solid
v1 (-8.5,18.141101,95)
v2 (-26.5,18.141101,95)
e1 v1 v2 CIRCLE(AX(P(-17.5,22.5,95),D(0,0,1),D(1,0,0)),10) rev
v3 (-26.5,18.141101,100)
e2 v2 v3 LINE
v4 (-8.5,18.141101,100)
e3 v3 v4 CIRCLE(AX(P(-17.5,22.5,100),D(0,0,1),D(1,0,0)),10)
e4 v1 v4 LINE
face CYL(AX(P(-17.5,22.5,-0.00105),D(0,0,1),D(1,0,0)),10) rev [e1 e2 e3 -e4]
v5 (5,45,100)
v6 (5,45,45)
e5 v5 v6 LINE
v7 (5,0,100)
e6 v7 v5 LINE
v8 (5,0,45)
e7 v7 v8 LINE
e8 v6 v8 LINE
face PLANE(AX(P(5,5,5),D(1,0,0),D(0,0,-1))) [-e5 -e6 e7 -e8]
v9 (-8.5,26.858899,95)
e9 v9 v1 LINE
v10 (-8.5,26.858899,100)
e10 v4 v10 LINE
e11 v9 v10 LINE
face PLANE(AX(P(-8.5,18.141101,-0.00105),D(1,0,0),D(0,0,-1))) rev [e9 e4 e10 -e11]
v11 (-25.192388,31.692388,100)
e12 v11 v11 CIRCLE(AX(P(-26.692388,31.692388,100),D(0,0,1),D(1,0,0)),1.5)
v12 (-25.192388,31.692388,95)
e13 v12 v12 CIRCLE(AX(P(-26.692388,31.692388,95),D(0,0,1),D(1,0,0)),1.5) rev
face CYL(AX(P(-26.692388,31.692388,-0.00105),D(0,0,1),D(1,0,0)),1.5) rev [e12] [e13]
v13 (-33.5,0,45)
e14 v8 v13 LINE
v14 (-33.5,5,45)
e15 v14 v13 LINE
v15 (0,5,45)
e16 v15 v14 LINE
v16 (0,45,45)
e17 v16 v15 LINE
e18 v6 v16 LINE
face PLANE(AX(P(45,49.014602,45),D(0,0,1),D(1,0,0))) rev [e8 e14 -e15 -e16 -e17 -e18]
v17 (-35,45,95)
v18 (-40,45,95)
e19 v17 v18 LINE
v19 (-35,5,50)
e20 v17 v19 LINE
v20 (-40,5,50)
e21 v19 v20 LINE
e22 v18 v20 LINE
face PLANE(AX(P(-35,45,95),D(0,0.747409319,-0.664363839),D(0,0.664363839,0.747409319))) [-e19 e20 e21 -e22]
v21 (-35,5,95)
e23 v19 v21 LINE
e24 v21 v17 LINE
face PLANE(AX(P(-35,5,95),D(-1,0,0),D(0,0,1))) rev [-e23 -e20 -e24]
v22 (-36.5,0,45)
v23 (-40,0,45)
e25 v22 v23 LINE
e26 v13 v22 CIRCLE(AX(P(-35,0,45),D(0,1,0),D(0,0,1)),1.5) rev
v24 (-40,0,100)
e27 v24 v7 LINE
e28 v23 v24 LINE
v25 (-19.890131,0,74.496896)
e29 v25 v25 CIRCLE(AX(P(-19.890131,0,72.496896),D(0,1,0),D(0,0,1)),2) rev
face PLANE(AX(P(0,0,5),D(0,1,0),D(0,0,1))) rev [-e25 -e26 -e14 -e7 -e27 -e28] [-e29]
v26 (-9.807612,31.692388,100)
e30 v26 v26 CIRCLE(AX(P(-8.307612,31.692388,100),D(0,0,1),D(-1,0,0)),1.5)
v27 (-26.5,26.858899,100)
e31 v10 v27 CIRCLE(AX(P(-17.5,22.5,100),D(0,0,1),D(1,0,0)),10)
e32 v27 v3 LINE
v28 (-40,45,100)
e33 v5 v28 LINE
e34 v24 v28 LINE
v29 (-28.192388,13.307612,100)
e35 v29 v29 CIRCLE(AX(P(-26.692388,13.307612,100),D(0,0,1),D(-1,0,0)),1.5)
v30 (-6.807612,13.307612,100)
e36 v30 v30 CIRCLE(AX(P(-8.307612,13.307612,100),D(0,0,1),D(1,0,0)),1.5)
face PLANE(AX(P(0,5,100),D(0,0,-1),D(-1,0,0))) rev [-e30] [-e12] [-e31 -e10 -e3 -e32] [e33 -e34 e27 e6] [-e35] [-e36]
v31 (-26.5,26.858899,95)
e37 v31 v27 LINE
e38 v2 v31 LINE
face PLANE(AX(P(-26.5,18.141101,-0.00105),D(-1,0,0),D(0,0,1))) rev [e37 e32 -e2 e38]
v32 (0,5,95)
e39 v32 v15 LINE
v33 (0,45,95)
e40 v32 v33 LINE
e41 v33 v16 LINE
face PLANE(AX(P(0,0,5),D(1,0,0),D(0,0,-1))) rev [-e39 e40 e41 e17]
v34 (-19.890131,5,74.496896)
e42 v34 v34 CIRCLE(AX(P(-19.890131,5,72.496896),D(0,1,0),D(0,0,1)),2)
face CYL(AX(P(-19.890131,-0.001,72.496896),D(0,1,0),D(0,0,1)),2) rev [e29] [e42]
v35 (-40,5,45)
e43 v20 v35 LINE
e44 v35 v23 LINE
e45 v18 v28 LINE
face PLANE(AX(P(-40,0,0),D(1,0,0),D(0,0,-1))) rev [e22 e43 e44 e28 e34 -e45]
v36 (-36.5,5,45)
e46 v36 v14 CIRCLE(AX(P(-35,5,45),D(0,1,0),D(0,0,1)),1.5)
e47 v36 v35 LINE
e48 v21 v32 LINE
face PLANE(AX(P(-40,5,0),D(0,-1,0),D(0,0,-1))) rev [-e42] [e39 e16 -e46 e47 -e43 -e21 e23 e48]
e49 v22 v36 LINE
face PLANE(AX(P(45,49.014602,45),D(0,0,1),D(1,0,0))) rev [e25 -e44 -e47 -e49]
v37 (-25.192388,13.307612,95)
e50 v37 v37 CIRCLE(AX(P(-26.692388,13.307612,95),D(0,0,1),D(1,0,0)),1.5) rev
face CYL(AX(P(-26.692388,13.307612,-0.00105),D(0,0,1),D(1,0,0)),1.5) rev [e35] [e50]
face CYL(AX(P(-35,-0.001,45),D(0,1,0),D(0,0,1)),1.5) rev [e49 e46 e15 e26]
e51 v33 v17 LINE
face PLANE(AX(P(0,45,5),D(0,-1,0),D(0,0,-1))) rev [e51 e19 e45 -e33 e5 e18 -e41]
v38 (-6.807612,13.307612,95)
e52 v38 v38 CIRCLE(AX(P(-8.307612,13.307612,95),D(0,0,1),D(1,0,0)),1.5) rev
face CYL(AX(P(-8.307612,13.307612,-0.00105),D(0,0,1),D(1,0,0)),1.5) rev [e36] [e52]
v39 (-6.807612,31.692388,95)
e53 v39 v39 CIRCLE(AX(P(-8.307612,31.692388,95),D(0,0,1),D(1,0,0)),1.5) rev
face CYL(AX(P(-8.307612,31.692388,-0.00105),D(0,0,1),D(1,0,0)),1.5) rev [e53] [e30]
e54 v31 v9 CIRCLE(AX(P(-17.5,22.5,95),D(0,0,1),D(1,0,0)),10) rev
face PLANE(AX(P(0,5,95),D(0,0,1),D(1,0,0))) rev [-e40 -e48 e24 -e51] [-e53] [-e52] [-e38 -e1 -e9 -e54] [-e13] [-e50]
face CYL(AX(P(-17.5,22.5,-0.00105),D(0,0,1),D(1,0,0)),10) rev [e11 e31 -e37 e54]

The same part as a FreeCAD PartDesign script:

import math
import FreeCAD as App
import Part
import Sketcher

V = App.Vector
Q = App.Units.Quantity


def add_polygon(sketch, points):
    """Adds a closed chain of lines whose ends are joined by coincident constraints."""
    first, n = sketch.GeometryCount, len(points)
    for a, b in zip(points, points[1:] + points[:1]):
        sketch.addGeometry(Part.LineSegment(App.Vector(*a, 0), App.Vector(*b, 0)), False)
    for i in range(n):
        sketch.addConstraint(Sketcher.Constraint("Coincident", first + i, 2, first + (i + 1) % n, 1))

doc = App.newDocument("Part")
body = doc.addObject("PartDesign::Body", "Body")

# Sketch on XY plane
sketch1 = body.newObject("Sketcher::SketchObject", "Sketch")
sketch1.AttachmentSupport = (doc.getObject("XY_Plane"), [""])
sketch1.MapMode = "FlatFace"
add_polygon(sketch1, [(0, 45), (0, 0), (45, 0), (45, 45)])  # lines 0-3
sketch1.addGeometry(Part.Circle(V(13.307612, 13.307612, 0), V(0, 0, 1), 1.5), False)  # 4
sketch1.addGeometry(Part.Circle(V(31.692388, 13.307612, 0), V(0, 0, 1), 1.5), False)  # 5
sketch1.addGeometry(Part.Circle(V(13.307612, 31.692388, 0), V(0, 0, 1), 1.5), False)  # 6
sketch1.addGeometry(Part.LineSegment(V(13.5, 18.141101, 0), V(13.5, 26.858899, 0)), False)  # 7
sketch1.addGeometry(Part.ArcOfCircle(Part.Circle(V(22.5, 22.5, 0), V(0, 0, 1), 10), math.radians(25.841933), math.radians(154.158067)), False)  # 8
sketch1.addGeometry(Part.LineSegment(V(31.5, 26.858899, 0), V(31.5, 18.141101, 0)), False)  # 9
sketch1.addGeometry(Part.ArcOfCircle(Part.Circle(V(22.5, 22.5, 0), V(0, 0, 1), 10), math.radians(-154.158067), math.radians(-25.841933)), False)  # 10
sketch1.addGeometry(Part.Circle(V(31.692388, 31.692388, 0), V(0, 0, 1), 1.5), False)  # 11
sketch1.addConstraint([
    Sketcher.Constraint("Coincident", 7, 2, 8, 2),
    Sketcher.Constraint("Coincident", 8, 1, 9, 1),
    Sketcher.Constraint("Coincident", 9, 2, 10, 2),
    Sketcher.Constraint("Coincident", 10, 1, 7, 1),
    Sketcher.Constraint("Vertical", 0),
    Sketcher.Constraint("Horizontal", 1),
    Sketcher.Constraint("Vertical", 2),
    Sketcher.Constraint("Horizontal", 3),
    Sketcher.Constraint("Vertical", 7),
    Sketcher.Constraint("Vertical", 9),
    Sketcher.Constraint("Coincident", 0, 2, -1, 1),
    Sketcher.Constraint("Coincident", 10, 3, 8, 3),
    Sketcher.Constraint("Equal", 4, 5),
    Sketcher.Constraint("Equal", 5, 6),
    Sketcher.Constraint("Equal", 8, 10),
    Sketcher.Constraint("Equal", 6, 11),
    Sketcher.Constraint("Horizontal", 4, 3, 5, 3),
    Sketcher.Constraint("Horizontal", 6, 3, 11, 3),
    Sketcher.Constraint("Horizontal", 7, 2, 8, 1),
    Sketcher.Constraint("Vertical", 4, 3, 6, 3),
    Sketcher.Constraint("Vertical", 5, 3, 11, 3),
    Sketcher.Constraint("Equal", 3, 0),
    Sketcher.Constraint("Diameter", 4, Q("3 mm")),
    Sketcher.Constraint("Radius", 8, Q("10 mm")),
    Sketcher.Constraint("DistanceX", 1, 1, 1, 2, Q("45 mm")),
    Sketcher.Constraint("DistanceX", 7, 2, 8, 3, Q("9 mm")),
    Sketcher.Constraint("DistanceX", -1, 1, 8, 3, Q("22.5 mm")),
    Sketcher.Constraint("DistanceY", -1, 1, 8, 3, Q("22.5 mm")),
    Sketcher.Constraint("DistanceX", -1, 1, 4, 3, Q("13.307612 mm")),
    Sketcher.Constraint("DistanceY", -1, 1, 4, 3, Q("13.307612 mm")),
    Sketcher.Constraint("DistanceX", -1, 1, 5, 3, Q("31.692388 mm")),
    Sketcher.Constraint("DistanceY", -1, 1, 6, 3, Q("31.692388 mm")),
])
pad1 = body.newObject("PartDesign::Pad", "Pad")
pad1.Profile = sketch1
pad1.Length = 5

# Sketch on XY plane
sketch2 = body.newObject("Sketcher::SketchObject", "Sketch001")
sketch2.AttachmentSupport = (doc.getObject("XY_Plane"), [""])
sketch2.MapMode = "FlatFace"
sketch2.AttachmentOffset = App.Placement(V(0, 0, 5), App.Rotation())
add_polygon(sketch2, [(0, 5), (0, 0), (45, 0), (45, 5)])  # lines 0-3
sketch2.addConstraint([
    Sketcher.Constraint("Vertical", 0),
    Sketcher.Constraint("Horizontal", 1),
    Sketcher.Constraint("Vertical", 2),
    Sketcher.Constraint("Horizontal", 3),
    Sketcher.Constraint("Coincident", 0, 2, -1, 1),
    Sketcher.Constraint("DistanceX", 1, 1, 1, 2, Q("45 mm")),
    Sketcher.Constraint("DistanceY", 0, 2, 0, 1, Q("5 mm")),
])
pad2 = body.newObject("PartDesign::Pad", "Pad001")
pad2.Profile = sketch2
pad2.Length = 95

# Sketch on YZ plane
sketch3 = body.newObject("Sketcher::SketchObject", "Sketch002")
sketch3.AttachmentSupport = (doc.getObject("YZ_Plane"), [""])
sketch3.MapMode = "FlatFace"
sketch3.AttachmentOffset = App.Placement(V(0, 0, 45), App.Rotation())
add_polygon(sketch3, [(5, 5), (45, 5), (5, 50)])  # lines 0-2
sketch3.addConstraint([
    Sketcher.Constraint("Horizontal", 0),
    Sketcher.Constraint("Vertical", 2),
    Sketcher.Constraint("DistanceX", 0, 1, 0, 2, Q("40 mm")),
    Sketcher.Constraint("DistanceY", 2, 2, 2, 1, Q("45 mm")),
    Sketcher.Constraint("DistanceX", -1, 1, 0, 2, Q("45 mm")),
    Sketcher.Constraint("DistanceY", -1, 1, 0, 2, Q("5 mm")),
])
pad3 = body.newObject("PartDesign::Pad", "Pad002")
pad3.Profile = sketch3
pad3.Length = 5
pad3.Reversed = True

# Sketch on YZ plane
sketch4 = body.newObject("Sketcher::SketchObject", "Sketch003")
sketch4.AttachmentSupport = (doc.getObject("YZ_Plane"), [""])
sketch4.MapMode = "FlatFace"
add_polygon(sketch4, [(45, 5), (5, 5), (5, 100), (45, 100)])  # lines 0-3
sketch4.addConstraint([
    Sketcher.Constraint("Horizontal", 0),
    Sketcher.Constraint("Vertical", 1),
    Sketcher.Constraint("Horizontal", 2),
    Sketcher.Constraint("Vertical", 3),
    Sketcher.Constraint("DistanceX", 0, 2, 0, 1, Q("40 mm")),
    Sketcher.Constraint("DistanceY", 1, 1, 1, 2, Q("95 mm")),
    Sketcher.Constraint("DistanceX", -1, 1, 0, 2, Q("5 mm")),
    Sketcher.Constraint("DistanceY", -1, 1, 0, 2, Q("5 mm")),
])
pad4 = body.newObject("PartDesign::Pad", "Pad003")
pad4.Profile = sketch4
pad4.Length = 5

# Sketch on YZ plane
sketch5 = body.newObject("Sketcher::SketchObject", "Sketch004")
sketch5.AttachmentSupport = (doc.getObject("YZ_Plane"), [""])
sketch5.MapMode = "FlatFace"
add_polygon(sketch5, [(5, 0), (0, 0), (0, 100), (5, 100)])  # lines 0-3
sketch5.addConstraint([
    Sketcher.Constraint("Horizontal", 0),
    Sketcher.Constraint("Vertical", 1),
    Sketcher.Constraint("Horizontal", 2),
    Sketcher.Constraint("Vertical", 3),
    Sketcher.Constraint("Coincident", 0, 2, -1, 1),
    Sketcher.Constraint("DistanceX", 0, 2, 0, 1, Q("5 mm")),
    Sketcher.Constraint("DistanceY", 1, 1, 1, 2, Q("100 mm")),
])
pad5 = body.newObject("PartDesign::Pad", "Pad004")
pad5.Profile = sketch5
pad5.Length = 40
pad5.Reversed = True

# Sketch on XY plane
sketch6 = body.newObject("Sketcher::SketchObject", "Sketch005")
sketch6.AttachmentSupport = (doc.getObject("XY_Plane"), [""])
sketch6.MapMode = "FlatFace"
sketch6.AttachmentOffset = App.Placement(V(0, 0, 100), App.Rotation())
add_polygon(sketch6, [(-40, 45), (-40, 5), (0, 5), (0, 45)])  # lines 0-3
sketch6.addConstraint([
    Sketcher.Constraint("Vertical", 0),
    Sketcher.Constraint("Horizontal", 1),
    Sketcher.Constraint("Vertical", 2),
    Sketcher.Constraint("Horizontal", 3),
    Sketcher.Constraint("PointOnObject", 1, 2, -2),
    Sketcher.Constraint("Equal", 3, 0),
    Sketcher.Constraint("DistanceX", 1, 1, 1, 2, Q("40 mm")),
    Sketcher.Constraint("DistanceY", -1, 1, 0, 2, Q("5 mm")),
])
pad6 = body.newObject("PartDesign::Pad", "Pad005")
pad6.Profile = sketch6
pad6.Length = 5
pad6.Reversed = True

# Sketch on YZ plane
sketch7 = body.newObject("Sketcher::SketchObject", "Sketch006")
sketch7.AttachmentSupport = (doc.getObject("YZ_Plane"), [""])
sketch7.MapMode = "FlatFace"
sketch7.AttachmentOffset = App.Placement(V(0, 0, -40), App.Rotation())
add_polygon(sketch7, [(5, 95), (45, 95), (5, 50)])  # lines 0-2
sketch7.addConstraint([
    Sketcher.Constraint("Horizontal", 0),
    Sketcher.Constraint("Vertical", 2),
    Sketcher.Constraint("DistanceX", 0, 1, 0, 2, Q("40 mm")),
    Sketcher.Constraint("DistanceY", 2, 1, 2, 2, Q("45 mm")),
    Sketcher.Constraint("DistanceX", -1, 1, 0, 2, Q("45 mm")),
    Sketcher.Constraint("DistanceY", -1, 1, 0, 2, Q("95 mm")),
])
pad7 = body.newObject("PartDesign::Pad", "Pad006")
pad7.Profile = sketch7
pad7.Length = 5

# Sketch on XY plane
sketch8 = body.newObject("Sketcher::SketchObject", "Sketch007")
sketch8.AttachmentSupport = (doc.getObject("XY_Plane"), [""])
sketch8.MapMode = "FlatFace"
sketch8.AttachmentOffset = App.Placement(V(0, 0, 100), App.Rotation())
sketch8.addGeometry(Part.Circle(V(-26.692388, 31.692388, 0), V(0, 0, 1), 1.5), False)
sketch8.addConstraint([
    Sketcher.Constraint("Diameter", 0, Q("3 mm")),
    Sketcher.Constraint("DistanceX", 0, 3, -1, 1, Q("26.692388 mm")),
    Sketcher.Constraint("DistanceY", -1, 1, 0, 3, Q("31.692388 mm")),
])
pocket1 = body.newObject("PartDesign::Pocket", "Pocket")
pocket1.Profile = sketch8
pocket1.Type = "UpToFirst"

# Sketch on XY plane
sketch9 = body.newObject("Sketcher::SketchObject", "Sketch008")
sketch9.AttachmentSupport = (doc.getObject("XY_Plane"), [""])
sketch9.MapMode = "FlatFace"
sketch9.AttachmentOffset = App.Placement(V(0, 0, 100), App.Rotation())
sketch9.addGeometry(Part.Circle(V(-26.692388, 13.307612, 0), V(0, 0, 1), 1.5), False)
sketch9.addConstraint([
    Sketcher.Constraint("Diameter", 0, Q("3 mm")),
    Sketcher.Constraint("DistanceX", 0, 3, -1, 1, Q("26.692388 mm")),
    Sketcher.Constraint("DistanceY", -1, 1, 0, 3, Q("13.307612 mm")),
])
pocket2 = body.newObject("PartDesign::Pocket", "Pocket001")
pocket2.Profile = sketch9
pocket2.Type = "UpToFirst"

# Sketch on XY plane
sketch10 = body.newObject("Sketcher::SketchObject", "Sketch009")
sketch10.AttachmentSupport = (doc.getObject("XY_Plane"), [""])
sketch10.MapMode = "FlatFace"
sketch10.AttachmentOffset = App.Placement(V(0, 0, 100), App.Rotation())
sketch10.addGeometry(Part.Circle(V(-8.307612, 13.307612, 0), V(0, 0, 1), 1.5), False)
sketch10.addConstraint([
    Sketcher.Constraint("Diameter", 0, Q("3 mm")),
    Sketcher.Constraint("DistanceX", 0, 3, -1, 1, Q("8.307612 mm")),
    Sketcher.Constraint("DistanceY", -1, 1, 0, 3, Q("13.307612 mm")),
])
pocket3 = body.newObject("PartDesign::Pocket", "Pocket002")
pocket3.Profile = sketch10
pocket3.Type = "UpToFirst"

# Sketch on XY plane
sketch11 = body.newObject("Sketcher::SketchObject", "Sketch010")
sketch11.AttachmentSupport = (doc.getObject("XY_Plane"), [""])
sketch11.MapMode = "FlatFace"
sketch11.AttachmentOffset = App.Placement(V(0, 0, 100), App.Rotation())
sketch11.addGeometry(Part.Circle(V(-8.307612, 31.692388, 0), V(0, 0, 1), 1.5), False)
sketch11.addConstraint([
    Sketcher.Constraint("Diameter", 0, Q("3 mm")),
    Sketcher.Constraint("DistanceX", 0, 3, -1, 1, Q("8.307612 mm")),
    Sketcher.Constraint("DistanceY", -1, 1, 0, 3, Q("31.692388 mm")),
])
pocket4 = body.newObject("PartDesign::Pocket", "Pocket003")
pocket4.Profile = sketch11
pocket4.Type = "UpToFirst"

# Sketch on XY plane
sketch12 = body.newObject("Sketcher::SketchObject", "Sketch011")
sketch12.AttachmentSupport = (doc.getObject("XY_Plane"), [""])
sketch12.MapMode = "FlatFace"
sketch12.AttachmentOffset = App.Placement(V(0, 0, 100), App.Rotation())
sketch12.addGeometry([
    Part.LineSegment(V(-26.5, 26.858899, 0), V(-26.5, 18.141101, 0)),
    Part.ArcOfCircle(Part.Circle(V(-17.5, 22.5, 0), V(0, 0, 1), 10), math.radians(-154.158067), math.radians(-25.841933)),
    Part.LineSegment(V(-8.5, 18.141101, 0), V(-8.5, 26.858899, 0)),
    Part.ArcOfCircle(Part.Circle(V(-17.5, 22.5, 0), V(0, 0, 1), 10), math.radians(25.841933), math.radians(154.158067)),
], False)
sketch12.addConstraint([
    Sketcher.Constraint("Coincident", 0, 2, 1, 1),
    Sketcher.Constraint("Coincident", 1, 2, 2, 1),
    Sketcher.Constraint("Coincident", 2, 2, 3, 1),
    Sketcher.Constraint("Coincident", 3, 2, 0, 1),
    Sketcher.Constraint("Vertical", 0),
    Sketcher.Constraint("Vertical", 2),
    Sketcher.Constraint("Coincident", 3, 3, 1, 3),
    Sketcher.Constraint("Equal", 1, 3),
    Sketcher.Constraint("Horizontal", 0, 2, 1, 2),
    Sketcher.Constraint("Radius", 1, Q("10 mm")),
    Sketcher.Constraint("DistanceX", 0, 2, 1, 3, Q("9 mm")),
    Sketcher.Constraint("DistanceX", 1, 3, -1, 1, Q("17.5 mm")),
    Sketcher.Constraint("DistanceY", -1, 1, 1, 3, Q("22.5 mm")),
])
pocket5 = body.newObject("PartDesign::Pocket", "Pocket004")
pocket5.Profile = sketch12
pocket5.Type = "UpToFirst"

# Sketch on XZ plane
sketch13 = body.newObject("Sketcher::SketchObject", "Sketch012")
sketch13.AttachmentSupport = (doc.getObject("XZ_Plane"), [""])
sketch13.MapMode = "FlatFace"
sketch13.AttachmentOffset = App.Placement(V(0, 0, -5), App.Rotation())
sketch13.addGeometry(Part.Circle(V(40, 95, 0), V(0, 0, 1), 1.5), False)
sketch13.addConstraint([
    Sketcher.Constraint("Diameter", 0, Q("3 mm")),
    Sketcher.Constraint("DistanceX", -1, 1, 0, 3, Q("40 mm")),
    Sketcher.Constraint("DistanceY", -1, 1, 0, 3, Q("95 mm")),
])
pocket6 = body.newObject("PartDesign::Pocket", "Pocket005")
pocket6.Profile = sketch13
pocket6.Type = "UpToFirst"
pocket6.Reversed = True

# Sketch on XZ plane
sketch14 = body.newObject("Sketcher::SketchObject", "Sketch013")
sketch14.AttachmentSupport = (doc.getObject("XZ_Plane"), [""])
sketch14.MapMode = "FlatFace"
sketch14.AttachmentOffset = App.Placement(V(0, 0, -5), App.Rotation())
sketch14.addGeometry(Part.Circle(V(10, 95, 0), V(0, 0, 1), 1.5), False)
sketch14.addConstraint([
    Sketcher.Constraint("Diameter", 0, Q("3 mm")),
    Sketcher.Constraint("DistanceX", -1, 1, 0, 3, Q("10 mm")),
    Sketcher.Constraint("DistanceY", -1, 1, 0, 3, Q("95 mm")),
])
pocket7 = body.newObject("PartDesign::Pocket", "Pocket006")
pocket7.Profile = sketch14
pocket7.Type = "UpToFirst"
pocket7.Reversed = True

# Sketch on XZ plane
sketch15 = body.newObject("Sketcher::SketchObject", "Sketch014")
sketch15.AttachmentSupport = (doc.getObject("XZ_Plane"), [""])
sketch15.MapMode = "FlatFace"
sketch15.AttachmentOffset = App.Placement(V(0, 0, -5), App.Rotation())
sketch15.addGeometry(Part.Circle(V(-35, 5, 0), V(0, 0, 1), 1.5), False)
sketch15.addConstraint([
    Sketcher.Constraint("Diameter", 0, Q("3 mm")),
    Sketcher.Constraint("DistanceX", 0, 3, -1, 1, Q("35 mm")),
    Sketcher.Constraint("DistanceY", -1, 1, 0, 3, Q("5 mm")),
])
pocket8 = body.newObject("PartDesign::Pocket", "Pocket007")
pocket8.Profile = sketch15
pocket8.Type = "UpToFirst"
pocket8.Reversed = True

# Sketch on XZ plane
sketch16 = body.newObject("Sketcher::SketchObject", "Sketch015")
sketch16.AttachmentSupport = (doc.getObject("XZ_Plane"), [""])
sketch16.MapMode = "FlatFace"
sketch16.AttachmentOffset = App.Placement(V(0, 0, -5), App.Rotation())
sketch16.addGeometry(Part.Circle(V(-5, 5, 0), V(0, 0, 1), 1.5), False)
sketch16.addConstraint([
    Sketcher.Constraint("Diameter", 0, Q("3 mm")),
    Sketcher.Constraint("DistanceX", 0, 3, -1, 1, Q("5 mm")),
    Sketcher.Constraint("DistanceY", -1, 1, 0, 3, Q("5 mm")),
])
pocket9 = body.newObject("PartDesign::Pocket", "Pocket008")
pocket9.Profile = sketch16
pocket9.Type = "UpToFirst"
pocket9.Reversed = True

# Sketch on XZ plane
sketch17 = body.newObject("Sketcher::SketchObject", "Sketch016")
sketch17.AttachmentSupport = (doc.getObject("XZ_Plane"), [""])
sketch17.MapMode = "FlatFace"
sketch17.AttachmentOffset = App.Placement(V(0, 0, -5), App.Rotation())
sketch17.addGeometry(Part.Circle(V(40, 55, 0), V(0, 0, 1), 1.5), False)
sketch17.addConstraint([
    Sketcher.Constraint("Diameter", 0, Q("3 mm")),
    Sketcher.Constraint("DistanceX", -1, 1, 0, 3, Q("40 mm")),
    Sketcher.Constraint("DistanceY", -1, 1, 0, 3, Q("55 mm")),
])
pocket10 = body.newObject("PartDesign::Pocket", "Pocket009")
pocket10.Profile = sketch17
pocket10.Type = "UpToFirst"
pocket10.Reversed = True

# Sketch on XZ plane
sketch18 = body.newObject("Sketcher::SketchObject", "Sketch017")
sketch18.AttachmentSupport = (doc.getObject("XZ_Plane"), [""])
sketch18.MapMode = "FlatFace"
sketch18.AttachmentOffset = App.Placement(V(0, 0, -5), App.Rotation())
sketch18.addGeometry(Part.Circle(V(-35, 45, 0), V(0, 0, 1), 1.5), False)
sketch18.addConstraint([
    Sketcher.Constraint("Diameter", 0, Q("3 mm")),
    Sketcher.Constraint("DistanceX", 0, 3, -1, 1, Q("35 mm")),
    Sketcher.Constraint("DistanceY", -1, 1, 0, 3, Q("45 mm")),
])
pocket11 = body.newObject("PartDesign::Pocket", "Pocket010")
pocket11.Profile = sketch18
pocket11.Type = "UpToFirst"
pocket11.Reversed = True

# Sketch on XY plane
sketch19 = body.newObject("Sketcher::SketchObject", "Sketch018")
sketch19.AttachmentSupport = (doc.getObject("XY_Plane"), [""])
sketch19.MapMode = "FlatFace"
add_polygon(sketch19, [(45, 49.014602), (45, 0), (-43.935907, 0), (-43.935907, 49.014602)])  # lines 0-3
sketch19.addConstraint([
    Sketcher.Constraint("Vertical", 0),
    Sketcher.Constraint("Horizontal", 1),
    Sketcher.Constraint("Vertical", 2),
    Sketcher.Constraint("Horizontal", 3),
    Sketcher.Constraint("PointOnObject", 0, 2, -1),
    Sketcher.Constraint("DistanceX", -1, 1, 0, 2, Q("45 mm")),
    Sketcher.Constraint("DistanceY", 0, 2, 0, 1, Q("49.014602 mm")),
    Sketcher.Constraint("DistanceX", 1, 2, 1, 1, Q("88.935907 mm")),
])
pocket12 = body.newObject("PartDesign::Pocket", "Pocket011")
pocket12.Profile = sketch19
pocket12.Length = 45
pocket12.Reversed = True

# Sketch on YZ plane
sketch20 = body.newObject("Sketcher::SketchObject", "Sketch019")
sketch20.AttachmentSupport = (doc.getObject("YZ_Plane"), [""])
sketch20.MapMode = "FlatFace"
sketch20.AttachmentOffset = App.Placement(V(0, 0, 45), App.Rotation())
add_polygon(sketch20, [(38.028527, 100), (0, 100), (0, 37.857221), (38.028527, 37.857221)])  # lines 0-3
sketch20.addConstraint([
    Sketcher.Constraint("Horizontal", 0),
    Sketcher.Constraint("Vertical", 1),
    Sketcher.Constraint("Horizontal", 2),
    Sketcher.Constraint("Vertical", 3),
    Sketcher.Constraint("PointOnObject", 0, 2, -2),
    Sketcher.Constraint("DistanceY", -1, 1, 0, 2, Q("100 mm")),
    Sketcher.Constraint("DistanceY", 1, 2, 1, 1, Q("62.142779 mm")),
    Sketcher.Constraint("DistanceX", 0, 2, 0, 1, Q("38.028527 mm")),
])
pocket13 = body.newObject("PartDesign::Pocket", "Pocket012")
pocket13.Profile = sketch20
pocket13.Length = 40

# Sketch on XZ plane
sketch21 = body.newObject("Sketcher::SketchObject", "Sketch020")
sketch21.AttachmentSupport = (doc.getObject("XZ_Plane"), [""])
sketch21.MapMode = "FlatFace"
sketch21.AttachmentOffset = App.Placement(V(0, 0, -5), App.Rotation())
sketch21.addGeometry(Part.Circle(V(-19.890131, 72.496896, 0), V(0, 0, 1), 2), False)
sketch21.addConstraint([
    Sketcher.Constraint("Diameter", 0, Q("4 mm")),
    Sketcher.Constraint("DistanceX", 0, 3, -1, 1, Q("19.890131 mm")),
    Sketcher.Constraint("DistanceY", -1, 1, 0, 3, Q("72.496896 mm")),
])
pocket14 = body.newObject("PartDesign::Pocket", "Pocket013")
pocket14.Profile = sketch21
pocket14.Type = "UpToFirst"
pocket14.Reversed = True

doc.recompute()
